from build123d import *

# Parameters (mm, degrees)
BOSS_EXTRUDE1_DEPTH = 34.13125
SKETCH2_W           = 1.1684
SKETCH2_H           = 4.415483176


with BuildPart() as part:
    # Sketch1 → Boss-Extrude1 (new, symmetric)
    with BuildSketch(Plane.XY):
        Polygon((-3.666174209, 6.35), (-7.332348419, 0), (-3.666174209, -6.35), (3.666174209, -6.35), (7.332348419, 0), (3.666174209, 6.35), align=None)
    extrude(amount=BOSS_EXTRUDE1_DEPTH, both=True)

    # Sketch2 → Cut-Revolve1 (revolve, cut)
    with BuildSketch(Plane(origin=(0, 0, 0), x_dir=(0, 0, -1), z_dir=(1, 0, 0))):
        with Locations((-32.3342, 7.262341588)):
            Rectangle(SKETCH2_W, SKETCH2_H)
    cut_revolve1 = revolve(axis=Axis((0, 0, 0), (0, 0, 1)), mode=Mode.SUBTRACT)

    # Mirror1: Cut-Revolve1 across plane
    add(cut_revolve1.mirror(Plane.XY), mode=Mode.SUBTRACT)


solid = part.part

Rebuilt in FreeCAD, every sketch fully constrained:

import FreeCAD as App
import Part
import Sketcher

V = App.Vector
Q = App.Units.Quantity


def add_polygon(sketch, points):
    """Adds a closed chain of lines whose ends are joined by coincident constraints."""
    first, n = sketch.GeometryCount, len(points)
    for a, b in zip(points, points[1:] + points[:1]):
        sketch.addGeometry(Part.LineSegment(App.Vector(*a, 0), App.Vector(*b, 0)), False)
    for i in range(n):
        sketch.addConstraint(Sketcher.Constraint("Coincident", first + i, 2, first + (i + 1) % n, 1))

doc = App.newDocument("Part")
body = doc.addObject("PartDesign::Body", "Body")

sketch1 = body.newObject("Sketcher::SketchObject", "Sketch")
sketch1.AttachmentSupport = (doc.getObject("XY_Plane"), [""])
sketch1.MapMode = "FlatFace"
add_polygon(sketch1, [(-4, 6), (-7, 0), (-4, -6), (4, -6), (7, 0), (4, 6)])
sketch1.addConstraint(Sketcher.Constraint("Horizontal", 2))
sketch1.addConstraint(Sketcher.Constraint("Horizontal", 5))
sketch1.addConstraint(Sketcher.Constraint("Symmetric", 0, 2, 3, 2, -1, 1))
sketch1.addConstraint(Sketcher.Constraint("Symmetric", 1, 2, 4, 2, -1, 1))
sketch1.addConstraint(Sketcher.Constraint("PointOnObject", 0, 2, -1))
sketch1.addConstraint(Sketcher.Constraint("Parallel", 0, 3))
sketch1.addConstraint(Sketcher.Constraint("Vertical", 2, 2, 4, 2))
sketch1.addConstraint(Sketcher.Constraint("Angle", 0, Q("-120 deg")))
sketch1.addConstraint(Sketcher.Constraint("DistanceY", 2, 2, 4, 2, Q("0.5 in")))
sketch1.addConstraint(Sketcher.Constraint("DistanceX", 2, 1, 2, 2, 7.332348))
pad1 = body.newObject("PartDesign::Pad", "Pad")
pad1.Profile = sketch1
pad1.Length = Q("2.6875 in")
pad1.Midplane = True

sketch2 = body.newObject("Sketcher::SketchObject", "Sketch001")
sketch2.AttachmentSupport = (doc.getObject("YZ_Plane"), [""])
sketch2.MapMode = "FlatFace"
add_polygon(sketch2, [(9.5, 32.9), (5.1, 32.9), (5.1, 31.8), (9.5, 31.8)])
sketch2.addConstraint(Sketcher.Constraint("Horizontal", 0))
sketch2.addConstraint(Sketcher.Constraint("Vertical", 1))
sketch2.addConstraint(Sketcher.Constraint("Horizontal", 2))
sketch2.addConstraint(Sketcher.Constraint("Vertical", 3))
sketch2.addConstraint(Sketcher.Constraint("DistanceY", 1, 2, 1, 1, Q("0.046 in")))
sketch2.addConstraint(Sketcher.Constraint("DistanceY", -1, 1, 1, 2, Q("1.25 in")))
sketch2.addConstraint(Sketcher.Constraint("DistanceX", -1, 1, 0, 2, Q("0.199 in")))
sketch2.addConstraint(Sketcher.Constraint("DistanceX", 0, 2, 0, 1, 4.415483))
groove = body.newObject("PartDesign::Groove", "Groove")
groove.Profile = sketch2
groove.ReferenceAxis = (sketch2, ["V_Axis"])
groove.Angle = 360
doc.recompute()

mirrored = body.newObject("PartDesign::Mirrored", "Mirrored")
mirrored.Originals = [groove]
mirrored.MirrorPlane = (doc.getObject("XY_Plane"), [""])
body.Tip = mirrored

doc.recompute()
